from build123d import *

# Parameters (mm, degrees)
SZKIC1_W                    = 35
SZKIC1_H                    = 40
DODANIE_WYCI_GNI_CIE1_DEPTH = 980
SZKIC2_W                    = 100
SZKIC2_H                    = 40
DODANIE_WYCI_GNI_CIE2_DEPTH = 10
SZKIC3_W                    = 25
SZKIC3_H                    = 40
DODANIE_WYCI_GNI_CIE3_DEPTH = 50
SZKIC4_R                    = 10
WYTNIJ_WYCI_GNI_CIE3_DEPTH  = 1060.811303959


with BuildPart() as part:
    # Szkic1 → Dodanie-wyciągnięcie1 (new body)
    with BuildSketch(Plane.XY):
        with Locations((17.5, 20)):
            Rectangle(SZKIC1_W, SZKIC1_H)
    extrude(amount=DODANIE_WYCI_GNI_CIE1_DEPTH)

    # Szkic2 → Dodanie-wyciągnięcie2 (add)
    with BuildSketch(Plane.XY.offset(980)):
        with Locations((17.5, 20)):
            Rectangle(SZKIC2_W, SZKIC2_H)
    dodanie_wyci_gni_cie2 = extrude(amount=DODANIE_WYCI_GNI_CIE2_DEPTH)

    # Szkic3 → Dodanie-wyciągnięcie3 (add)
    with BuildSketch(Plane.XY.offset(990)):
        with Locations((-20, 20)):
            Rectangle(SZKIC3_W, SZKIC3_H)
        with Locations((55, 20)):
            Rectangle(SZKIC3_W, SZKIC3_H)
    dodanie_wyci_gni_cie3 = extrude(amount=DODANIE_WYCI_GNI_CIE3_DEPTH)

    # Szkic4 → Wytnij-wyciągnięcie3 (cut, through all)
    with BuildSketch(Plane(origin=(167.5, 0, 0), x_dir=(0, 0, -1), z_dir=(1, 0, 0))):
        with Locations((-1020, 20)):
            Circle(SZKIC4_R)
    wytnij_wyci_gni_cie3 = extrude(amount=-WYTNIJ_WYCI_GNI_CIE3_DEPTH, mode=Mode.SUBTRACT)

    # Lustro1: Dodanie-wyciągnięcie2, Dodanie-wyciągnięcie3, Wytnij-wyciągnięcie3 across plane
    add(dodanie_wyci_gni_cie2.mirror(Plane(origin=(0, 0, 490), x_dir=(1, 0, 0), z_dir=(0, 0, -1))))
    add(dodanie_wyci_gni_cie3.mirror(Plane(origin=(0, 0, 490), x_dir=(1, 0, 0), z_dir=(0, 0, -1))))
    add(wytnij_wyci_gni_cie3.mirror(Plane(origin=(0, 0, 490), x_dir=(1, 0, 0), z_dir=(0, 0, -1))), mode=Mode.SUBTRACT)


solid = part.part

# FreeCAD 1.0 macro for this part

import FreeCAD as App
import Part
import Sketcher
Q = App.Units.Quantity


def add_polygon(sketch, points):
    """Adds a closed chain of lines whose ends are joined by coincident constraints."""
    first, n = sketch.GeometryCount, len(points)
    for a, b in zip(points, points[1:] + points[:1]):
        sketch.addGeometry(Part.LineSegment(App.Vector(*a, 0), App.Vector(*b, 0)), False)
    for i in range(n):
        sketch.addConstraint(Sketcher.Constraint("Coincident", first + i, 2, first + (i + 1) % n, 1))

doc = App.newDocument("Part")
params = doc.addObject("Spreadsheet::Sheet", "Params")
for row, (alias, value) in enumerate([
    ("sketch1_width", "35 mm"),
    ("sketch1_height", "40 mm"),
    ("pad1_length", "980 mm"),
    ("sketch2_width", "100 mm"),
    ("sketch2_height", "40 mm"),
    ("pad2_length", "10 mm"),
    ("sketch3_width", "25 mm"),
    ("sketch3_height", "40 mm"),
    ("pad3_length", "50 mm"),
    ("sketch4_diameter", "20 mm"),
], start=1):
    params.set(f"A{row}", alias)
    params.set(f"B{row}", "=" + value)
    params.setAlias(f"B{row}", alias)

body = doc.addObject("PartDesign::Body", "Body")

# Sketch on XY plane
sketch1 = body.newObject("Sketcher::SketchObject", "Sketch")
sketch1.AttachmentSupport = (doc.getObject("XY_Plane"), [""])
sketch1.MapMode = "FlatFace"
add_polygon(sketch1, [(0, 40), (0, 0), (35, 0), (35, 40)])  # lines 0-3
sketch1.addConstraint([
    Sketcher.Constraint("Vertical", 0),
    Sketcher.Constraint("Horizontal", 1),
    Sketcher.Constraint("Vertical", 2),
    Sketcher.Constraint("Horizontal", 3),
    Sketcher.Constraint("Coincident", 0, 2, -1, 1),
    Sketcher.Constraint("DistanceX", 1, 1, 1, 2, Q("35 mm")),
    Sketcher.Constraint("DistanceY", 0, 2, 0, 1, Q("40 mm")),
])
sketch1.setExpression("Constraints[9]", "Params.sketch1_width")
sketch1.setExpression("Constraints[10]", "Params.sketch1_height")
pad1 = body.newObject("PartDesign::Pad", "Pad")
pad1.Profile = sketch1
pad1.setExpression("Length", "Params.pad1_length")

# Sketch on XY plane
sketch2 = body.newObject("Sketcher::SketchObject", "Sketch001")
sketch2.AttachmentSupport = (doc.getObject("XY_Plane"), [""])
sketch2.MapMode = "FlatFace"
sketch2.AttachmentOffset = App.Placement(App.Vector(0, 0, 980), App.Rotation())
add_polygon(sketch2, [(-32, 40), (-32, 0), (68, 0), (68, 40)])  # lines 0-3
sketch2.addConstraint([
    Sketcher.Constraint("Vertical", 0),
    Sketcher.Constraint("Horizontal", 1),
    Sketcher.Constraint("Vertical", 2),
    Sketcher.Constraint("Horizontal", 3),
    Sketcher.Constraint("PointOnObject", 0, 2, -1),
    Sketcher.Constraint("DistanceX", 1, 1, 1, 2, Q("100 mm")),
    Sketcher.Constraint("DistanceY", 0, 2, 0, 1, Q("40 mm")),
    Sketcher.Constraint("DistanceX", 0, 2, -1, 1, Q("32.5 mm")),
])
sketch2.setExpression("Constraints[9]", "Params.sketch2_width")
sketch2.setExpression("Constraints[10]", "Params.sketch2_height")
pad2 = body.newObject("PartDesign::Pad", "Pad001")
pad2.Profile = sketch2
pad2.setExpression("Length", "Params.pad2_length")

# Sketch on XY plane
sketch3 = body.newObject("Sketcher::SketchObject", "Sketch002")
sketch3.AttachmentSupport = (doc.getObject("XY_Plane"), [""])
sketch3.MapMode = "FlatFace"
sketch3.AttachmentOffset = App.Placement(App.Vector(0, 0, 990), App.Rotation())
add_polygon(sketch3, [(-32, 40), (-32, 0), (-8, 0), (-8, 40)])  # lines 0-3
add_polygon(sketch3, [(42, 40), (42, 0), (68, 0), (68, 40)])  # lines 4-7
sketch3.addConstraint([
    Sketcher.Constraint("Vertical", 0),
    Sketcher.Constraint("Horizontal", 1),
    Sketcher.Constraint("Vertical", 2),
    Sketcher.Constraint("Horizontal", 3),
    Sketcher.Constraint("Vertical", 4),
    Sketcher.Constraint("Horizontal", 5),
    Sketcher.Constraint("Vertical", 6),
    Sketcher.Constraint("Horizontal", 7),
    Sketcher.Constraint("PointOnObject", 0, 2, -1),
    Sketcher.Constraint("PointOnObject", 4, 2, -1),
    Sketcher.Constraint("Horizontal", 3, 2, 6, 2),
    Sketcher.Constraint("Equal", 3, 5),
    Sketcher.Constraint("DistanceX", 1, 1, 1, 2, Q("25 mm")),
    Sketcher.Constraint("DistanceY", 0, 2, 0, 1, Q("40 mm")),
    Sketcher.Constraint("DistanceX", 1, 2, 4, 2, Q("50 mm")),
    Sketcher.Constraint("DistanceX", 0, 2, -1, 1, Q("32.5 mm")),
])
sketch3.setExpression("Constraints[20]", "Params.sketch3_width")
sketch3.setExpression("Constraints[21]", "Params.sketch3_height")
pad3 = body.newObject("PartDesign::Pad", "Pad002")
pad3.Profile = sketch3
pad3.setExpression("Length", "Params.pad3_length")

# Sketch on YZ plane
sketch4 = body.newObject("Sketcher::SketchObject", "Sketch003")
sketch4.AttachmentSupport = (doc.getObject("YZ_Plane"), [""])
sketch4.MapMode = "FlatFace"
sketch4.AttachmentOffset = App.Placement(App.Vector(0, 0, 167.5), App.Rotation())
sketch4.addGeometry(Part.Circle(App.Vector(20, 1020, 0), App.Vector(0, 0, 1), 10), False)
sketch4.addConstraint([
    Sketcher.Constraint("Diameter", 0, Q("20 mm")),
    Sketcher.Constraint("DistanceX", -1, 1, 0, 3, Q("20 mm")),
    Sketcher.Constraint("DistanceY", -1, 1, 0, 3, Q("1020 mm")),
])
sketch4.setExpression("Constraints[0]", "Params.sketch4_diameter")
pocket1 = body.newObject("PartDesign::Pocket", "Pocket")
pocket1.Profile = sketch4
pocket1.Type = "ThroughAll"
doc.recompute()

datumplane = body.newObject("PartDesign::Plane", "DatumPlane")
datumplane.AttachmentSupport = (doc.getObject("XY_Plane"), [""])
datumplane.MapMode = "FlatFace"
datumplane.AttachmentOffset = App.Placement(App.Vector(0, 0, 490), App.Rotation())
mirrored = body.newObject("PartDesign::Mirrored", "Mirrored")
mirrored.Originals = [pad2, pad3, pocket1]
mirrored.MirrorPlane = (datumplane, [""])
body.Tip = mirrored

doc.recompute()
